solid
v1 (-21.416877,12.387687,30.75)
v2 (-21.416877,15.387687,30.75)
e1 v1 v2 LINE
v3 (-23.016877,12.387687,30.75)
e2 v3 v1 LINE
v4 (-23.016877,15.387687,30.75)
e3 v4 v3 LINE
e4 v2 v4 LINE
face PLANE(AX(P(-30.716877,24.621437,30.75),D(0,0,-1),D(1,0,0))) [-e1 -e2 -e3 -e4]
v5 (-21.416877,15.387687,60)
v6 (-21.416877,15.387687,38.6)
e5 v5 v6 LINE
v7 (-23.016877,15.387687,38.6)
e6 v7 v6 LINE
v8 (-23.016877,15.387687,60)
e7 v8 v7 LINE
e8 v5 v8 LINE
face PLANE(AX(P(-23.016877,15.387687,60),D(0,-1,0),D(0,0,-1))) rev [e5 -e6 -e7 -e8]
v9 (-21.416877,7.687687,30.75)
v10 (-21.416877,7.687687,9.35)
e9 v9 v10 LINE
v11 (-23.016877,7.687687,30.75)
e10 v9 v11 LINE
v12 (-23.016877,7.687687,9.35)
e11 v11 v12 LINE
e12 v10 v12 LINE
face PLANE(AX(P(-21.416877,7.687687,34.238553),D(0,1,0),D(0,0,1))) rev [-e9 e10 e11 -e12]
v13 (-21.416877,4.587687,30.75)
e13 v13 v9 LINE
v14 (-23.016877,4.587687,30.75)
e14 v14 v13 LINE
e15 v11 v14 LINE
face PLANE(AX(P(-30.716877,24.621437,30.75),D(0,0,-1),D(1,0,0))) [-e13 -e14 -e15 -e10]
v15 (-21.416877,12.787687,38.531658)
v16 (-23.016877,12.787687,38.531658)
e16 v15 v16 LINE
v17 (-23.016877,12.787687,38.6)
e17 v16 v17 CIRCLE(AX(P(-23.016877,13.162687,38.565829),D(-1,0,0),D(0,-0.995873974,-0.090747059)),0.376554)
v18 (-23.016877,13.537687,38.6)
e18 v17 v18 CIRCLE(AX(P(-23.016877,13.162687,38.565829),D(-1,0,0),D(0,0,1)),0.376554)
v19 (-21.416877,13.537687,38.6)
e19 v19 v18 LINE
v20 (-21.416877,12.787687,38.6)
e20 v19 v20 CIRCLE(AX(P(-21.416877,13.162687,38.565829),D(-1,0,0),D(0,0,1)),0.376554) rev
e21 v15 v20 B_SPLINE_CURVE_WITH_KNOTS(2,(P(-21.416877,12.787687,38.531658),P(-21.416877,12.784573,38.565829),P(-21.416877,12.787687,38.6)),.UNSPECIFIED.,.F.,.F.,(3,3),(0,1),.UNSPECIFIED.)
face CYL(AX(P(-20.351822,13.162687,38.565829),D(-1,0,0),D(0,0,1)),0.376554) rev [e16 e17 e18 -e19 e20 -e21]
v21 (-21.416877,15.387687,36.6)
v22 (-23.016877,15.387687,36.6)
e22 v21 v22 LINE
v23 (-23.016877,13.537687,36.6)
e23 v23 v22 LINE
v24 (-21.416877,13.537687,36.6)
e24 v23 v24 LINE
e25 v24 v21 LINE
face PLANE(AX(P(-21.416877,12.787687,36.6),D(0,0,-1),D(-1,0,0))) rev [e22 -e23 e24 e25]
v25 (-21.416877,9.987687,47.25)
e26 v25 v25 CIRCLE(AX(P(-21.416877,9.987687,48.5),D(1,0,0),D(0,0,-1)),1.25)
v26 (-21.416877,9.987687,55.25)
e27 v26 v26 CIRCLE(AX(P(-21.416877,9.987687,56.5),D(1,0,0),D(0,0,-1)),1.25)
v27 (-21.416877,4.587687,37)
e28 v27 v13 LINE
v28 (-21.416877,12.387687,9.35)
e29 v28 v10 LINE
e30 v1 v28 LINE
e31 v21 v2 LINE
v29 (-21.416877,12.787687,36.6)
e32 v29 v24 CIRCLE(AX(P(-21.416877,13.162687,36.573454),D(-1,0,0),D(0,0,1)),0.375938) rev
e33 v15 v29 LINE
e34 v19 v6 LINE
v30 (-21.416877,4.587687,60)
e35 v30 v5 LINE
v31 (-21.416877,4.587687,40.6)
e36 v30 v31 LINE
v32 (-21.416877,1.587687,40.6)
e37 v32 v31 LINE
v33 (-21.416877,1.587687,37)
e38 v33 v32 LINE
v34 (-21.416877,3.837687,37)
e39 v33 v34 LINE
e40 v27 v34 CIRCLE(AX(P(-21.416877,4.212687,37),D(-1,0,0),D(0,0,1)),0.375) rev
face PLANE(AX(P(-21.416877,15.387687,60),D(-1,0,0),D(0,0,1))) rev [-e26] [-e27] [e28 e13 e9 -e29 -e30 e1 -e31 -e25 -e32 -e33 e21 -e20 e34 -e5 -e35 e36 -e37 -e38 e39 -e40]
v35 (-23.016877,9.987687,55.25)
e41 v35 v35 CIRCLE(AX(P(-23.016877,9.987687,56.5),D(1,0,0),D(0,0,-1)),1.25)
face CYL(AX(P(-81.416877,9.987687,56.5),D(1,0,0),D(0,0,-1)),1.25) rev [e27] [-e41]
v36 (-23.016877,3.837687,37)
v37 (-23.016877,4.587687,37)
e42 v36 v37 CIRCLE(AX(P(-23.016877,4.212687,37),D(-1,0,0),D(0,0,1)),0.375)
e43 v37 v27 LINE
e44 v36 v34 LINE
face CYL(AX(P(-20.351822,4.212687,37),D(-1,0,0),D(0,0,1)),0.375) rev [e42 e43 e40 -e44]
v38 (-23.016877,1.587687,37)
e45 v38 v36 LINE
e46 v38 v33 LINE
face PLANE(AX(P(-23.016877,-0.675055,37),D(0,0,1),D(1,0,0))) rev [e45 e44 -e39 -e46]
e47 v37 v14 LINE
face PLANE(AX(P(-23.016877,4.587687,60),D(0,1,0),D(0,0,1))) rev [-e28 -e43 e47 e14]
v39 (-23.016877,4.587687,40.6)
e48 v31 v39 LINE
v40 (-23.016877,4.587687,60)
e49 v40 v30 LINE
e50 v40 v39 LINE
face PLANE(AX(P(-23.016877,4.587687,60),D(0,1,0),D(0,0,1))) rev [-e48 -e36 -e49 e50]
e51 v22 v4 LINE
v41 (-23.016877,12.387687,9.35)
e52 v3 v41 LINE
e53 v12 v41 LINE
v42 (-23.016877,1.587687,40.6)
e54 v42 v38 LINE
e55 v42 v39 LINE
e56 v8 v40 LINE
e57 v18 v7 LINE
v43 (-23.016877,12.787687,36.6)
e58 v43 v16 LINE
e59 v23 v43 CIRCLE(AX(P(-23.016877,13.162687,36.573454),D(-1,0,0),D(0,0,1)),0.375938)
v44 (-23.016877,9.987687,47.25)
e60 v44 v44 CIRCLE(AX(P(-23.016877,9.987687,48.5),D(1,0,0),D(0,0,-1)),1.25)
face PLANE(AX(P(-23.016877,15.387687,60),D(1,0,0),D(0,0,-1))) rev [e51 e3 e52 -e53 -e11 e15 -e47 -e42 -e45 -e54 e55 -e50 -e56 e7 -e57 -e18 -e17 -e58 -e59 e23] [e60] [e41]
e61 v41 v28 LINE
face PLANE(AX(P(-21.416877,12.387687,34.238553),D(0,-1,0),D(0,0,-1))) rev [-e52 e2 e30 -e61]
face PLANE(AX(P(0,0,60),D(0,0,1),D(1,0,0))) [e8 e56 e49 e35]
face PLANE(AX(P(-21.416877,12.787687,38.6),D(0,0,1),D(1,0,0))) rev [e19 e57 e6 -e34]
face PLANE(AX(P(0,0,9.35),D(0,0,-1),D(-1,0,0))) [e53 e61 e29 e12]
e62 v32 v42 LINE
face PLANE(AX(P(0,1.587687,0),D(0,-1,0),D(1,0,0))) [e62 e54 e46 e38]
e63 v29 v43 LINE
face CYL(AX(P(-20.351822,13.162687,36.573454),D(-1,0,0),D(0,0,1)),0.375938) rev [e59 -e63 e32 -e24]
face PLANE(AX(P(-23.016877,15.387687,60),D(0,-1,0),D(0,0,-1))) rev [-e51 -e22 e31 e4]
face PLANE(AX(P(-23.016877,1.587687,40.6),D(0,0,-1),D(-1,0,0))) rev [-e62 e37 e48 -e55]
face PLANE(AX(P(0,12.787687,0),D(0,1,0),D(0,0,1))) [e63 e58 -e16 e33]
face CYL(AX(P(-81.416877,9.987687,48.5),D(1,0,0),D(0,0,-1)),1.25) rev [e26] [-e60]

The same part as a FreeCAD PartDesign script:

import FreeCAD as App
import Part
import Sketcher
from FreeCAD import Vector
Q = App.Units.Quantity

doc = App.newDocument("Part")
params = doc.addObject("Spreadsheet::Sheet", "Params")
for row, (alias, value) in enumerate([
    ("sketch1_width", "1.6 mm"),
    ("sketch1_height", "10.8 mm"),
    ("pad1_length", "60 mm"),
    ("sketch2_diameter", "2.5 mm"),
    ("pocket1_length", "60 mm"),
    ("sketch3_height", "2 mm"),
    ("sketch3_width", "1.6 mm"),
    ("pocket2_length", "2.6 mm"),
    ("sketch4_height", "2 mm"),
    ("sketch4_width", "1.6 mm"),
    ("pad2_length", "3 mm"),
    ("sketch5_height", "3 mm"),
    ("sketch5_width", "1.6 mm"),
    ("sketch5_height2", "3.1 mm"),
    ("pocket3_length", "30.75 mm"),
    ("sketch6_width", "1.6 mm"),
    ("sketch6_height", "4.7 mm"),
    ("pocket4_length", "9.35 mm"),
    ("sketch7_width", "1.6 mm"),
    ("pad3_length", "3 mm"),
    ("sketch8_diameter", "0.75 mm"),
    ("pocket5_length", "1.6 mm"),
], start=1):
    params.set(f"A{row}", alias)
    params.set(f"B{row}", "=" + value)
    params.setAlias(f"B{row}", alias)

body = doc.addObject("PartDesign::Body", "Body")

# Sketch on XY plane
sketch1 = body.newObject("Sketcher::SketchObject", "Sketch")
sketch1.AttachmentSupport = (doc.getObject("XY_Plane"), [""])
sketch1.MapMode = "FlatFace"
sketch1.addGeometry([
    Part.LineSegment(Vector(-23.016877, 15.387687, 0), Vector(-23.016877, 4.587687, 0)),
    Part.LineSegment(Vector(-23.016877, 4.587687, 0), Vector(-21.416877, 4.587687, 0)),
    Part.LineSegment(Vector(-21.416877, 4.587687, 0), Vector(-21.416877, 15.387687, 0)),
    Part.LineSegment(Vector(-21.416877, 15.387687, 0), Vector(-23.016877, 15.387687, 0)),
], False)
sketch1.addConstraint([
    Sketcher.Constraint("Coincident", 0, 2, 1, 1),
    Sketcher.Constraint("Coincident", 1, 2, 2, 1),
    Sketcher.Constraint("Coincident", 2, 2, 3, 1),
    Sketcher.Constraint("Coincident", 3, 2, 0, 1),
    Sketcher.Constraint("Vertical", 0),
    Sketcher.Constraint("Horizontal", 1),
    Sketcher.Constraint("Vertical", 2),
    Sketcher.Constraint("Horizontal", 3),
    Sketcher.Constraint("DistanceX", 1, 1, 1, 2, Q("1.6 mm")),
    Sketcher.Constraint("DistanceY", 0, 2, 0, 1, Q("10.8 mm")),
    Sketcher.Constraint("DistanceX", 0, 2, -1, 1, Q("23.016877 mm")),
    Sketcher.Constraint("DistanceY", -1, 1, 0, 2, Q("4.587687 mm")),
])
sketch1.setExpression("Constraints[8]", "Params.sketch1_width")
sketch1.setExpression("Constraints[9]", "Params.sketch1_height")
pad1 = body.newObject("PartDesign::Pad", "Pad")
pad1.Profile = sketch1
pad1.setExpression("Length", "Params.pad1_length")

# Sketch on YZ plane
sketch2 = body.newObject("Sketcher::SketchObject", "Sketch001")
sketch2.AttachmentSupport = (doc.getObject("YZ_Plane"), [""])
sketch2.MapMode = "FlatFace"
sketch2.AttachmentOffset = App.Placement(Vector(0, 0, -21.416877), App.Rotation())
sketch2.addGeometry([
    Part.Circle(Vector(9.987687, 56.5, 0), Vector(0, 0, 1), 1.25),
    Part.Circle(Vector(9.987687, 48.5, 0), Vector(0, 0, 1), 1.25),
], False)
sketch2.addConstraint([
    Sketcher.Constraint("Equal", 0, 1),
    Sketcher.Constraint("Vertical", 0, 3, 1, 3),
    Sketcher.Constraint("Diameter", 0, Q("2.5 mm")),
    Sketcher.Constraint("DistanceY", 1, 3, 0, 3, Q("8 mm")),
    Sketcher.Constraint("DistanceY", -1, 1, 0, 3, Q("56.5 mm")),
    Sketcher.Constraint("DistanceX", -1, 1, 0, 3, Q("9.987687 mm")),
])
sketch2.setExpression("Constraints[2]", "Params.sketch2_diameter")
pocket1 = body.newObject("PartDesign::Pocket", "Pocket")
pocket1.Profile = sketch2
pocket1.setExpression("Length", "Params.pocket1_length")

# Sketch on XZ plane
sketch3 = body.newObject("Sketcher::SketchObject", "Sketch002")
sketch3.AttachmentSupport = (doc.getObject("XZ_Plane"), [""])
sketch3.MapMode = "FlatFace"
sketch3.AttachmentOffset = App.Placement(Vector(0, 0, -15.387687), App.Rotation())
sketch3.addGeometry([
    Part.LineSegment(Vector(-23.016877, 36.6, 0), Vector(-23.016877, 38.6, 0)),
    Part.LineSegment(Vector(-23.016877, 38.6, 0), Vector(-21.416877, 38.6, 0)),
    Part.LineSegment(Vector(-21.416877, 38.6, 0), Vector(-21.416877, 36.6, 0)),
    Part.LineSegment(Vector(-21.416877, 36.6, 0), Vector(-23.016877, 36.6, 0)),
], False)
sketch3.addConstraint([
    Sketcher.Constraint("Coincident", 0, 2, 1, 1),
    Sketcher.Constraint("Coincident", 1, 2, 2, 1),
    Sketcher.Constraint("Coincident", 2, 2, 3, 1),
    Sketcher.Constraint("Coincident", 3, 2, 0, 1),
    Sketcher.Constraint("Vertical", 0),
    Sketcher.Constraint("Horizontal", 1),
    Sketcher.Constraint("Vertical", 2),
    Sketcher.Constraint("Horizontal", 3),
    Sketcher.Constraint("DistanceY", 0, 1, 0, 2, Q("2 mm")),
    Sketcher.Constraint("DistanceX", 1, 1, 1, 2, Q("1.6 mm")),
    Sketcher.Constraint("DistanceY", -1, 1, 0, 2, Q("38.6 mm")),
    Sketcher.Constraint("DistanceX", 0, 2, -1, 1, Q("23.016877 mm")),
])
sketch3.setExpression("Constraints[8]", "Params.sketch3_height")
sketch3.setExpression("Constraints[9]", "Params.sketch3_width")
pocket2 = body.newObject("PartDesign::Pocket", "Pocket001")
pocket2.Profile = sketch3
pocket2.setExpression("Length", "Params.pocket2_length")
pocket2.Reversed = True

# Sketch on XZ plane
sketch4 = body.newObject("Sketcher::SketchObject", "Sketch003")
sketch4.AttachmentSupport = (doc.getObject("XZ_Plane"), [""])
sketch4.MapMode = "FlatFace"
sketch4.AttachmentOffset = App.Placement(Vector(0, 0, -4.587687), App.Rotation())
sketch4.addGeometry([
    Part.LineSegment(Vector(-23.016877, 40.6, 0), Vector(-23.016877, 38.6, 0)),
    Part.LineSegment(Vector(-23.016877, 38.6, 0), Vector(-21.416877, 38.6, 0)),
    Part.LineSegment(Vector(-21.416877, 38.6, 0), Vector(-21.416877, 40.6, 0)),
    Part.LineSegment(Vector(-21.416877, 40.6, 0), Vector(-23.016877, 40.6, 0)),
], False)
sketch4.addConstraint([
    Sketcher.Constraint("Coincident", 0, 2, 1, 1),
    Sketcher.Constraint("Coincident", 1, 2, 2, 1),
    Sketcher.Constraint("Coincident", 2, 2, 3, 1),
    Sketcher.Constraint("Coincident", 3, 2, 0, 1),
    Sketcher.Constraint("Vertical", 0),
    Sketcher.Constraint("Horizontal", 1),
    Sketcher.Constraint("Vertical", 2),
    Sketcher.Constraint("Horizontal", 3),
    Sketcher.Constraint("DistanceY", 0, 2, 0, 1, Q("2 mm")),
    Sketcher.Constraint("DistanceX", 1, 1, 1, 2, Q("1.6 mm")),
    Sketcher.Constraint("DistanceY", -1, 1, 0, 2, Q("38.6 mm")),
    Sketcher.Constraint("DistanceX", 0, 2, -1, 1, Q("23.016877 mm")),
])
sketch4.setExpression("Constraints[8]", "Params.sketch4_height")
sketch4.setExpression("Constraints[9]", "Params.sketch4_width")
pad2 = body.newObject("PartDesign::Pad", "Pad001")
pad2.Profile = sketch4
pad2.setExpression("Length", "Params.pad2_length")

# Sketch on XY plane
sketch5 = body.newObject("Sketcher::SketchObject", "Sketch004")
sketch5.AttachmentSupport = (doc.getObject("XY_Plane"), [""])
sketch5.MapMode = "FlatFace"
sketch5.AttachmentOffset = App.Placement(Vector(0, 0, 30.75), App.Rotation())
sketch5.addGeometry([
    Part.LineSegment(Vector(-21.416877, 15.387687, 0), Vector(-21.416877, 12.387687, 0)),  # 0
    Part.LineSegment(Vector(-21.416877, 12.387687, 0), Vector(-23.016877, 12.387687, 0)),  # 1
    Part.LineSegment(Vector(-23.016877, 12.387687, 0), Vector(-23.016877, 15.387687, 0)),  # 2
    Part.LineSegment(Vector(-23.016877, 15.387687, 0), Vector(-21.416877, 15.387687, 0)),  # 3
    Part.LineSegment(Vector(-21.416877, 7.687687, 0), Vector(-21.416877, 4.587687, 0)),  # 4
    Part.LineSegment(Vector(-21.416877, 4.587687, 0), Vector(-23.016877, 4.587687, 0)),  # 5
    Part.LineSegment(Vector(-23.016877, 4.587687, 0), Vector(-23.016877, 7.687687, 0)),  # 6
    Part.LineSegment(Vector(-23.016877, 7.687687, 0), Vector(-21.416877, 7.687687, 0)),  # 7
], False)
sketch5.addConstraint([
    Sketcher.Constraint("Coincident", 0, 2, 1, 1),
    Sketcher.Constraint("Coincident", 1, 2, 2, 1),
    Sketcher.Constraint("Coincident", 2, 2, 3, 1),
    Sketcher.Constraint("Coincident", 3, 2, 0, 1),
    Sketcher.Constraint("Coincident", 4, 2, 5, 1),
    Sketcher.Constraint("Coincident", 5, 2, 6, 1),
    Sketcher.Constraint("Coincident", 6, 2, 7, 1),
    Sketcher.Constraint("Coincident", 7, 2, 4, 1),
    Sketcher.Constraint("Vertical", 0),
    Sketcher.Constraint("Horizontal", 1),
    Sketcher.Constraint("Vertical", 2),
    Sketcher.Constraint("Horizontal", 3),
    Sketcher.Constraint("Vertical", 4),
    Sketcher.Constraint("Horizontal", 5),
    Sketcher.Constraint("Vertical", 6),
    Sketcher.Constraint("Horizontal", 7),
    Sketcher.Constraint("Vertical", 3, 2, 4, 2),
    Sketcher.Constraint("Vertical", 2, 2, 5, 2),
    Sketcher.Constraint("DistanceY", 0, 2, 0, 1, Q("3 mm")),
    Sketcher.Constraint("DistanceX", 1, 2, 1, 1, Q("1.6 mm")),
    Sketcher.Constraint("DistanceY", 4, 2, 4, 1, Q("3.1 mm")),
    Sketcher.Constraint("DistanceY", 4, 2, 0, 2, Q("7.8 mm")),
    Sketcher.Constraint("DistanceX", 0, 2, -1, 1, Q("21.416877 mm")),
    Sketcher.Constraint("DistanceY", -1, 1, 0, 2, Q("12.387687 mm")),
])
sketch5.setExpression("Constraints[18]", "Params.sketch5_height")
sketch5.setExpression("Constraints[19]", "Params.sketch5_width")
sketch5.setExpression("Constraints[20]", "Params.sketch5_height2")
pocket3 = body.newObject("PartDesign::Pocket", "Pocket002")
pocket3.Profile = sketch5
pocket3.setExpression("Length", "Params.pocket3_length")

# Sketch on XY plane
sketch6 = body.newObject("Sketcher::SketchObject", "Sketch005")
sketch6.AttachmentSupport = (doc.getObject("XY_Plane"), [""])
sketch6.MapMode = "FlatFace"
sketch6.addGeometry([
    Part.LineSegment(Vector(-21.416877, 12.387687, 0), Vector(-21.416877, 7.687687, 0)),
    Part.LineSegment(Vector(-21.416877, 7.687687, 0), Vector(-23.016877, 7.687687, 0)),
    Part.LineSegment(Vector(-23.016877, 7.687687, 0), Vector(-23.016877, 12.387687, 0)),
    Part.LineSegment(Vector(-23.016877, 12.387687, 0), Vector(-21.416877, 12.387687, 0)),
], False)
sketch6.addConstraint([
    Sketcher.Constraint("Coincident", 0, 2, 1, 1),
    Sketcher.Constraint("Coincident", 1, 2, 2, 1),
    Sketcher.Constraint("Coincident", 2, 2, 3, 1),
    Sketcher.Constraint("Coincident", 3, 2, 0, 1),
    Sketcher.Constraint("Vertical", 0),
    Sketcher.Constraint("Horizontal", 1),
    Sketcher.Constraint("Vertical", 2),
    Sketcher.Constraint("Horizontal", 3),
    Sketcher.Constraint("DistanceX", 1, 2, 1, 1, Q("1.6 mm")),
    Sketcher.Constraint("DistanceY", 0, 2, 0, 1, Q("4.7 mm")),
    Sketcher.Constraint("DistanceX", 0, 2, -1, 1, Q("21.416877 mm")),
    Sketcher.Constraint("DistanceY", -1, 1, 0, 2, Q("7.687687 mm")),
])
sketch6.setExpression("Constraints[8]", "Params.sketch6_width")
sketch6.setExpression("Constraints[9]", "Params.sketch6_height")
pocket4 = body.newObject("PartDesign::Pocket", "Pocket003")
pocket4.Profile = sketch6
pocket4.setExpression("Length", "Params.pocket4_length")
pocket4.Reversed = True

# Sketch on XZ plane
sketch7 = body.newObject("Sketcher::SketchObject", "Sketch006")
sketch7.AttachmentSupport = (doc.getObject("XZ_Plane"), [""])
sketch7.MapMode = "FlatFace"
sketch7.AttachmentOffset = App.Placement(Vector(0, 0, -4.587687), App.Rotation())
sketch7.addGeometry([
    Part.LineSegment(Vector(-23.016877, 38.6, 0), Vector(-23.016877, 37, 0)),
    Part.LineSegment(Vector(-23.016877, 37, 0), Vector(-21.416877, 37, 0)),
    Part.LineSegment(Vector(-21.416877, 37, 0), Vector(-21.416877, 38.6, 0)),
    Part.LineSegment(Vector(-21.416877, 38.6, 0), Vector(-23.016877, 38.6, 0)),
], False)
sketch7.addConstraint([
    Sketcher.Constraint("Coincident", 0, 2, 1, 1),
    Sketcher.Constraint("Coincident", 1, 2, 2, 1),
    Sketcher.Constraint("Coincident", 2, 2, 3, 1),
    Sketcher.Constraint("Coincident", 3, 2, 0, 1),
    Sketcher.Constraint("Vertical", 0),
    Sketcher.Constraint("Horizontal", 1),
    Sketcher.Constraint("Vertical", 2),
    Sketcher.Constraint("Horizontal", 3),
    Sketcher.Constraint("Equal", 3, 0),
    Sketcher.Constraint("DistanceX", 1, 1, 1, 2, Q("1.6 mm")),
    Sketcher.Constraint("DistanceY", -1, 1, 0, 2, Q("37 mm")),
    Sketcher.Constraint("DistanceX", 0, 2, -1, 1, Q("23.016877 mm")),
])
sketch7.setExpression("Constraints[9]", "Params.sketch7_width")
pad3 = body.newObject("PartDesign::Pad", "Pad002")
pad3.Profile = sketch7
pad3.setExpression("Length", "Params.pad3_length")

# Sketch on YZ plane
sketch8 = body.newObject("Sketcher::SketchObject", "Sketch007")
sketch8.AttachmentSupport = (doc.getObject("YZ_Plane"), [""])
sketch8.MapMode = "FlatFace"
sketch8.AttachmentOffset = App.Placement(Vector(0, 0, -23.016877), App.Rotation())
sketch8.addGeometry([
    Part.Circle(Vector(4.212687, 37, 0), Vector(0, 0, 1), 0.375),
    Part.Circle(Vector(13.162687, 38.565829, 0), Vector(0, 0, 1), 0.376554),
    Part.Circle(Vector(13.162687, 36.573454, 0), Vector(0, 0, 1), 0.375938),
], False)
sketch8.addConstraint([
    Sketcher.Constraint("Vertical", 1, 3, 2, 3),
    Sketcher.Constraint("Diameter", 0, Q("0.75 mm")),
    Sketcher.Constraint("DistanceY", -1, 1, 0, 3, Q("37 mm")),
    Sketcher.Constraint("DistanceX", 0, 3, 1, 3, Q("8.95 mm")),
    Sketcher.Constraint("Diameter", 1, Q("0.753107 mm")),
    Sketcher.Constraint("Diameter", 2, Q("0.751877 mm")),
    Sketcher.Constraint("DistanceY", -1, 1, 1, 3, Q("38.565829 mm")),
    Sketcher.Constraint("DistanceX", -1, 1, 0, 3, Q("4.212687 mm")),
    Sketcher.Constraint("DistanceY", -1, 1, 2, 3, Q("36.573454 mm")),
])
sketch8.setExpression("Constraints[1]", "Params.sketch8_diameter")
pocket5 = body.newObject("PartDesign::Pocket", "Pocket004")
pocket5.Profile = sketch8
pocket5.setExpression("Length", "Params.pocket5_length")
pocket5.Reversed = True

doc.recompute()
